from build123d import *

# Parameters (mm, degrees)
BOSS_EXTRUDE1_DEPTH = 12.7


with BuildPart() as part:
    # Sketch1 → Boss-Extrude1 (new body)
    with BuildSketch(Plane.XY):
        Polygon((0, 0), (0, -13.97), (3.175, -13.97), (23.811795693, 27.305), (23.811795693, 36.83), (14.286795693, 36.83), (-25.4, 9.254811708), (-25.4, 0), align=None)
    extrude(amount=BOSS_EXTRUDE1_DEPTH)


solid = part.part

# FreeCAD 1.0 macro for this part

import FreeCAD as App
import Part
import Sketcher
from FreeCAD import Vector
Q = App.Units.Quantity


def add_polygon(sketch, points):
    """Adds a closed chain of lines whose ends are joined by coincident constraints."""
    first, n = sketch.GeometryCount, len(points)
    for a, b in zip(points, points[1:] + points[:1]):
        sketch.addGeometry(Part.LineSegment(App.Vector(*a, 0), App.Vector(*b, 0)), False)
    for i in range(n):
        sketch.addConstraint(Sketcher.Constraint("Coincident", first + i, 2, first + (i + 1) % n, 1))

doc = App.newDocument("Part")
body = doc.addObject("PartDesign::Body", "Body")

# Sketch on XY plane
sketch1 = body.newObject("Sketcher::SketchObject", "Sketch")
sketch1.AttachmentSupport = (doc.getObject("XY_Plane"), [""])
sketch1.MapMode = "FlatFace"
add_polygon(sketch1, [(0, 0), (0, -14), (3.2, -14), (23.8, 27.3), (23.8, 36.8), (14.3, 36.8), (-25.4, 9.3), (-25.4, 0)])  # lines 0-7
sketch1.addConstraint([
    Sketcher.Constraint("Vertical", 0),
    Sketcher.Constraint("Horizontal", 1),
    Sketcher.Constraint("Vertical", 3),
    Sketcher.Constraint("Horizontal", 4),
    Sketcher.Constraint("Vertical", 6),
    Sketcher.Constraint("Horizontal", 7),
    Sketcher.Constraint("Coincident", 7, 2, -1, 1),
    Sketcher.Constraint("Equal", 4, 3),
    Sketcher.Constraint("DistanceX", 7, 1, 7, 2, Q("1 in")),
    Sketcher.Constraint("DistanceY", 1, 2, 3, 2, Q("2 in")),
    Sketcher.Constraint("DistanceY", 0, 2, 0, 1, Q("0.55 in")),
    Sketcher.Constraint("DistanceX", 1, 1, 1, 2, Q("0.125 in")),
    Sketcher.Constraint("DistanceX", 4, 2, 4, 1, Q("0.375 in")),
    Sketcher.Constraint("DistanceY", 6, 2, 6, 1, 9.254812),
    Sketcher.Constraint("Distance", 2, 46.146538),
])
pad1 = body.newObject("PartDesign::Pad", "Pad")
pad1.Profile = sketch1
pad1.Length = Q("0.5 in")

doc.recompute()
